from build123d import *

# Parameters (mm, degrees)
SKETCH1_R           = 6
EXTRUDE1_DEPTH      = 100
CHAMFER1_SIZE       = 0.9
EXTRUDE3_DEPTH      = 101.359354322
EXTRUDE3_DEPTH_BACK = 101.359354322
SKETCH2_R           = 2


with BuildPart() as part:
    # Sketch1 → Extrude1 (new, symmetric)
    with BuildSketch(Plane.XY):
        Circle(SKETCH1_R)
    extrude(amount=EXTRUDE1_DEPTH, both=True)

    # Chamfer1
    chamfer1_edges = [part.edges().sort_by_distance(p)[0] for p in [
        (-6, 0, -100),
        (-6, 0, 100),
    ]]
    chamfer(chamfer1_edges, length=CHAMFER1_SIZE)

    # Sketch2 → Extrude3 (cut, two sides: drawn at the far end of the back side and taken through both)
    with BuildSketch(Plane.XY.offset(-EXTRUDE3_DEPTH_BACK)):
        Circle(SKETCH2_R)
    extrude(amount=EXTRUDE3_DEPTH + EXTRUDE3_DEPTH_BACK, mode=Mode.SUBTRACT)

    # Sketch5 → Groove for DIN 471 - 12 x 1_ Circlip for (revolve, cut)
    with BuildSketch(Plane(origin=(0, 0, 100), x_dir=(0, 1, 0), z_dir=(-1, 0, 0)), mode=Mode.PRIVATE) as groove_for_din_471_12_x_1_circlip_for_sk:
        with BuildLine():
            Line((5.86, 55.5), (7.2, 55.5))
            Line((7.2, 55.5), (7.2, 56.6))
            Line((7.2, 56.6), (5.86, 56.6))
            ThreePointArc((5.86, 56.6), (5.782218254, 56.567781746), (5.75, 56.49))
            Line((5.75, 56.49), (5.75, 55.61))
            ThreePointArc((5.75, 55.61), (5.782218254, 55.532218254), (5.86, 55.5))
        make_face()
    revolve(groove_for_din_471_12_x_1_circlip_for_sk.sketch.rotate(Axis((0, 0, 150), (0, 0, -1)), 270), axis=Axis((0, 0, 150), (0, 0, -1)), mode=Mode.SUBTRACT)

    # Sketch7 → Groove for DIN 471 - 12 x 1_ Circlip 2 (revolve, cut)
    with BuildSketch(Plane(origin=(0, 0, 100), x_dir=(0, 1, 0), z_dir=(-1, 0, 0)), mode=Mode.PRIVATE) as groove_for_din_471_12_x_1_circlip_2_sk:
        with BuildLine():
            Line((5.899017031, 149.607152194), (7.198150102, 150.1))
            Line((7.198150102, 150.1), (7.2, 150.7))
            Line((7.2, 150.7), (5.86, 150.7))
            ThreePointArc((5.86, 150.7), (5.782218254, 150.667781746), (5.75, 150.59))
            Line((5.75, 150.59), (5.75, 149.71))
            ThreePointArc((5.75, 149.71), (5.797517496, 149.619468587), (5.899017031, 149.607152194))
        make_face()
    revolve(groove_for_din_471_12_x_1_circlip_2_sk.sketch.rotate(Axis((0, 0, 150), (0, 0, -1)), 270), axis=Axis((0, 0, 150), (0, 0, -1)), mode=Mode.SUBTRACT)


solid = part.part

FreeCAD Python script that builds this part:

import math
import FreeCAD as App
import Part
import Sketcher

V = App.Vector


def edges_at(feature, points):
    """Names of the edges that pass closest to the given points."""
    edges = feature.Shape.Edges
    near = lambda p: min(range(len(edges)), key=lambda i: edges[i].distToShape(Part.Vertex(*p))[0])
    return sorted({f"Edge{near(p) + 1}" for p in points})

doc = App.newDocument("Part")
body = doc.addObject("PartDesign::Body", "Body")

# Sketch on XY plane
sketch1 = body.newObject("Sketcher::SketchObject", "Sketch")
sketch1.AttachmentSupport = (doc.getObject("XY_Plane"), [""])
sketch1.MapMode = "FlatFace"
sketch1.addGeometry(Part.Circle(V(0, 0, 0), V(0, 0, 1), 6), False)
sketch1.addConstraint([
    Sketcher.Constraint("Coincident", 0, 3, -1, 1),
    Sketcher.Constraint("Diameter", 0, 12.0),
])
pad1 = body.newObject("PartDesign::Pad", "Pad")
pad1.Profile = sketch1
pad1.Length = 200
pad1.Midplane = True
doc.recompute()

chamfer = body.newObject("PartDesign::Chamfer", "Chamfer")
chamfer.Base = (pad1, edges_at(pad1, [(-6, 0, -100), (-6, 0, 100)]))
chamfer.Size = 0.9

# Sketch on XY plane
sketch2 = body.newObject("Sketcher::SketchObject", "Sketch001")
sketch2.AttachmentSupport = (doc.getObject("XY_Plane"), [""])
sketch2.MapMode = "FlatFace"
sketch2.addGeometry(Part.Circle(V(0, 0, 0), V(0, 0, 1), 2), False)
sketch2.addConstraint([
    Sketcher.Constraint("Coincident", 0, 3, -1, 1),
    Sketcher.Constraint("Diameter", 0, 4.0),
])
pocket1 = body.newObject("PartDesign::Pocket", "Pocket")
pocket1.Profile = sketch2
pocket1.Type = "ThroughAll"
pocket1.Midplane = True

# Sketch on YZ plane
sketch3 = body.newObject("Sketcher::SketchObject", "Sketch002")
sketch3.AttachmentSupport = (doc.getObject("YZ_Plane"), [""])
sketch3.MapMode = "FlatFace"
sketch3.addGeometry([
    Part.LineSegment(V(5.86, 44.5, 0), V(7.2, 44.5, 0)),  # 0
    Part.LineSegment(V(7.2, 44.5, 0), V(7.2, 43.4, 0)),  # 1
    Part.LineSegment(V(7.2, 43.4, 0), V(5.86, 43.4, 0)),  # 2
    Part.ArcOfCircle(Part.Circle(V(5.86, 43.51, 0), V(0, 0, 1), 0.11), math.radians(180), math.radians(270)),  # 3
    Part.LineSegment(V(5.75, 43.51, 0), V(5.75, 44.39, 0)),  # 4
    Part.ArcOfCircle(Part.Circle(V(5.86, 44.39, 0), V(0, 0, 1), 0.11), math.radians(90), math.radians(180)),  # 5
], False)
sketch3.addConstraint([
    Sketcher.Constraint("Coincident", 0, 2, 1, 1),
    Sketcher.Constraint("Coincident", 1, 2, 2, 1),
    Sketcher.Constraint("Tangent", 2, 2, 3, 2),
    Sketcher.Constraint("Tangent", 3, 1, 4, 1),
    Sketcher.Constraint("Tangent", 4, 2, 5, 2),
    Sketcher.Constraint("Tangent", 5, 1, 0, 1),
    Sketcher.Constraint("Horizontal", 0),
    Sketcher.Constraint("Vertical", 1),
    Sketcher.Constraint("Horizontal", 2),
    Sketcher.Constraint("Vertical", 4),
    Sketcher.Constraint("Equal", 3, 5),
    Sketcher.Constraint("Radius", 3, 0.11),
    Sketcher.Constraint("DistanceY", 1, 2, 1, 1, 1.1),
    Sketcher.Constraint("DistanceX", 0, 1, 0, 2, 1.34),
    Sketcher.Constraint("DistanceX", -1, 1, 0, 2, 7.2),
    Sketcher.Constraint("DistanceY", -1, 1, 0, 2, 44.5),
])
groove = body.newObject("PartDesign::Groove", "Groove")
groove.Profile = sketch3
groove.ReferenceAxis = (sketch3, ["V_Axis"])
groove.Angle = 360

# Sketch on YZ plane
sketch4 = body.newObject("Sketcher::SketchObject", "Sketch003")
sketch4.AttachmentSupport = (doc.getObject("YZ_Plane"), [""])
sketch4.MapMode = "FlatFace"
sketch4.addGeometry([
    Part.LineSegment(V(5.9, -49.61, 0), V(7.2, -50.1, 0)),  # 0
    Part.LineSegment(V(7.2, -50.1, 0), V(7.2, -50.7, 0)),  # 1
    Part.LineSegment(V(7.2, -50.7, 0), V(5.86, -50.7, 0)),  # 2
    Part.ArcOfCircle(Part.Circle(V(5.86, -50.59, 0), V(0, 0, 1), 0.11), math.radians(180), math.radians(270)),  # 3
    Part.LineSegment(V(5.75, -50.59, 0), V(5.75, -49.71, 0)),  # 4
    Part.ArcOfCircle(Part.Circle(V(5.86, -49.71, 0), V(0, 0, 1), 0.11), math.radians(69), math.radians(180)),  # 5
], False)
sketch4.addConstraint([
    Sketcher.Constraint("Coincident", 0, 2, 1, 1),
    Sketcher.Constraint("Coincident", 1, 2, 2, 1),
    Sketcher.Constraint("Tangent", 2, 2, 3, 2),
    Sketcher.Constraint("Tangent", 3, 1, 4, 1),
    Sketcher.Constraint("Tangent", 4, 2, 5, 2),
    Sketcher.Constraint("Tangent", 5, 1, 0, 1),
    Sketcher.Constraint("Horizontal", 2),
    Sketcher.Constraint("Vertical", 4),
    Sketcher.Constraint("Equal", 3, 5),
    Sketcher.Constraint("Radius", 3, 0.11),
    Sketcher.Constraint("DistanceX", 2, 2, 2, 1, 1.34),
    Sketcher.Constraint("DistanceY", 4, 1, 4, 2, 0.88),
    Sketcher.Constraint("DistanceY", 0, 2, -1, 1, 50.1),
    Sketcher.Constraint("DistanceX", -1, 1, 1, 2, 7.2),
    Sketcher.Constraint("DistanceY", 1, 2, -1, 1, 50.7),
    Sketcher.Constraint("DistanceX", -1, 1, 0, 2, 7.19815),
])
groove2 = body.newObject("PartDesign::Groove", "Groove001")
groove2.Profile = sketch4
groove2.ReferenceAxis = (sketch4, ["V_Axis"])
groove2.Angle = 360

doc.recompute()
